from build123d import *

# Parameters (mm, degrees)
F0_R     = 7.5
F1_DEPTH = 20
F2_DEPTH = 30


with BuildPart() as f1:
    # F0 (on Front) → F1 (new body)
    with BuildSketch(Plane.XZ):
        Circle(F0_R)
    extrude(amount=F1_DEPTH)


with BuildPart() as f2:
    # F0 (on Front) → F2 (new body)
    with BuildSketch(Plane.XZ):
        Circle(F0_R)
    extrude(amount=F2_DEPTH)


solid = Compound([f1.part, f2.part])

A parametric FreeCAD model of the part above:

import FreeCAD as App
import Part
import Sketcher
from FreeCAD import Vector

doc = App.newDocument("Part")
body = doc.addObject("PartDesign::Body", "Body")

sketch1 = body.newObject("Sketcher::SketchObject", "Sketch")
sketch1.AttachmentSupport = (doc.getObject("XZ_Plane"), [""])
sketch1.MapMode = "FlatFace"
sketch1.addGeometry(Part.Circle(Vector(0, 0, 0), Vector(0, 0, 1), 8), False)
sketch1.addConstraint([
    Sketcher.Constraint("Coincident", 0, 3, -1, 1),
    Sketcher.Constraint("Diameter", 0, 15.0),
])
pad1 = body.newObject("PartDesign::Pad", "Pad")
pad1.Profile = sketch1
pad1.Length = 20
body2 = doc.addObject("PartDesign::Body", "Body001")

sketch2 = body2.newObject("Sketcher::SketchObject", "Sketch001")
sketch2.AttachmentSupport = (doc.getObject("XZ_Plane001"), [""])
sketch2.MapMode = "FlatFace"
sketch2.addGeometry(Part.Circle(Vector(0, 0, 0), Vector(0, 0, 1), 8), False)
sketch2.addConstraint([
    Sketcher.Constraint("Coincident", 0, 3, -1, 1),
    Sketcher.Constraint("Diameter", 0, 15.0),
])
pad2 = body2.newObject("PartDesign::Pad", "Pad001")
pad2.Profile = sketch2
pad2.Length = 30

doc.recompute()
